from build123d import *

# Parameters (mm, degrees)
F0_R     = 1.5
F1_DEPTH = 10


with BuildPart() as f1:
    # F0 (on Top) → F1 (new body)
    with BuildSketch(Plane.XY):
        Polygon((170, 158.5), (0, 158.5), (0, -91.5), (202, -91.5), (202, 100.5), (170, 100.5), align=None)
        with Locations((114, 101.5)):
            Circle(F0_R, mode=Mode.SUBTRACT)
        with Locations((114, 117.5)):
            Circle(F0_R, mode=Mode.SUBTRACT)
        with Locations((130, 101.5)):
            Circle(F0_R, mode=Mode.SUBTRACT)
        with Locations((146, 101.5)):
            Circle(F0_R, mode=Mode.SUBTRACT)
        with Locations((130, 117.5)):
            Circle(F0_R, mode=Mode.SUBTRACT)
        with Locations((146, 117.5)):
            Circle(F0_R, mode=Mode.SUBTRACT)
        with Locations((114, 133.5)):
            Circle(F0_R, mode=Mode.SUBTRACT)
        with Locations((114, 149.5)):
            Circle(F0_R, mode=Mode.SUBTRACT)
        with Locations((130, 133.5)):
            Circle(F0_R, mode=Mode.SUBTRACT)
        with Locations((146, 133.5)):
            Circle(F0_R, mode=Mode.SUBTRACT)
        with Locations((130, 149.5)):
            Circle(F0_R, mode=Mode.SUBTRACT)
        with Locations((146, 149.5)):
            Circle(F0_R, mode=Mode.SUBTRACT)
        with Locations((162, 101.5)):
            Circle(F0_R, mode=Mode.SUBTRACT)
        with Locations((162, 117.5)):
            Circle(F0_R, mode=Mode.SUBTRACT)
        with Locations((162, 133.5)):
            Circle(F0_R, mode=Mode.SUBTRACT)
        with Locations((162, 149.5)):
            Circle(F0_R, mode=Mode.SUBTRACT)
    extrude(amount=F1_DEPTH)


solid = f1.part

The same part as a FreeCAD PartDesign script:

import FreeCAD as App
import Part
import Sketcher
Q = App.Units.Quantity


def add_polygon(sketch, points):
    """Adds a closed chain of lines whose ends are joined by coincident constraints."""
    first, n = sketch.GeometryCount, len(points)
    for a, b in zip(points, points[1:] + points[:1]):
        sketch.addGeometry(Part.LineSegment(App.Vector(*a, 0), App.Vector(*b, 0)), False)
    for i in range(n):
        sketch.addConstraint(Sketcher.Constraint("Coincident", first + i, 2, first + (i + 1) % n, 1))

doc = App.newDocument("Part")
params = doc.addObject("Spreadsheet::Sheet", "Params")
for row, (alias, value) in enumerate([
    ("sketch1_diameter", "3 mm"),
    ("sketch1_width", "170 mm"),
    ("sketch1_width2", "202 mm"),
    ("sketch1_height", "250 mm"),
    ("sketch1_height2", "192 mm"),
    ("pad1_length", "10 mm"),
], start=1):
    params.set(f"A{row}", alias)
    params.set(f"B{row}", "=" + value)
    params.setAlias(f"B{row}", alias)

body = doc.addObject("PartDesign::Body", "Body")

# Sketch on XY plane
sketch1 = body.newObject("Sketcher::SketchObject", "Sketch")
sketch1.AttachmentSupport = (doc.getObject("XY_Plane"), [""])
sketch1.MapMode = "FlatFace"
add_polygon(sketch1, [(170, 158.5), (0, 158.5), (0, -91.5), (202, -91.5), (202, 100.5), (170, 100.5)])  # lines 0-5
sketch1.addGeometry(Part.Circle(App.Vector(114, 101.5, 0), App.Vector(0, 0, 1), 1.5), False)  # 6
sketch1.addGeometry(Part.Circle(App.Vector(130, 101.5, 0), App.Vector(0, 0, 1), 1.5), False)  # 7
sketch1.addGeometry(Part.Circle(App.Vector(114, 117.5, 0), App.Vector(0, 0, 1), 1.5), False)  # 8
sketch1.addGeometry(Part.Circle(App.Vector(130, 117.5, 0), App.Vector(0, 0, 1), 1.5), False)  # 9
sketch1.addGeometry(Part.Circle(App.Vector(146, 101.5, 0), App.Vector(0, 0, 1), 1.5), False)  # 10
sketch1.addGeometry(Part.Circle(App.Vector(162, 101.5, 0), App.Vector(0, 0, 1), 1.5), False)  # 11
sketch1.addGeometry(Part.Circle(App.Vector(146, 117.5, 0), App.Vector(0, 0, 1), 1.5), False)  # 12
sketch1.addGeometry(Part.Circle(App.Vector(162, 117.5, 0), App.Vector(0, 0, 1), 1.5), False)  # 13
sketch1.addGeometry(Part.Circle(App.Vector(114, 133.5, 0), App.Vector(0, 0, 1), 1.5), False)  # 14
sketch1.addGeometry(Part.Circle(App.Vector(130, 133.5, 0), App.Vector(0, 0, 1), 1.5), False)  # 15
sketch1.addGeometry(Part.Circle(App.Vector(114, 149.5, 0), App.Vector(0, 0, 1), 1.5), False)  # 16
sketch1.addGeometry(Part.Circle(App.Vector(130, 149.5, 0), App.Vector(0, 0, 1), 1.5), False)  # 17
sketch1.addGeometry(Part.Circle(App.Vector(146, 133.5, 0), App.Vector(0, 0, 1), 1.5), False)  # 18
sketch1.addGeometry(Part.Circle(App.Vector(162, 133.5, 0), App.Vector(0, 0, 1), 1.5), False)  # 19
sketch1.addGeometry(Part.Circle(App.Vector(146, 149.5, 0), App.Vector(0, 0, 1), 1.5), False)  # 20
sketch1.addGeometry(Part.Circle(App.Vector(162, 149.5, 0), App.Vector(0, 0, 1), 1.5), False)  # 21
sketch1.addConstraint([
    Sketcher.Constraint("Horizontal", 0),
    Sketcher.Constraint("Vertical", 1),
    Sketcher.Constraint("Horizontal", 2),
    Sketcher.Constraint("Vertical", 3),
    Sketcher.Constraint("Horizontal", 4),
    Sketcher.Constraint("Vertical", 5),
    Sketcher.Constraint("Equal", 6, 7),
    Sketcher.Constraint("Equal", 7, 8),
    Sketcher.Constraint("Equal", 8, 9),
    Sketcher.Constraint("Equal", 9, 10),
    Sketcher.Constraint("Equal", 10, 11),
    Sketcher.Constraint("Equal", 11, 12),
    Sketcher.Constraint("Equal", 12, 13),
    Sketcher.Constraint("Equal", 13, 14),
    Sketcher.Constraint("Equal", 14, 15),
    Sketcher.Constraint("Equal", 15, 16),
    Sketcher.Constraint("Equal", 16, 17),
    Sketcher.Constraint("Equal", 17, 18),
    Sketcher.Constraint("Equal", 18, 19),
    Sketcher.Constraint("Equal", 19, 20),
    Sketcher.Constraint("Equal", 20, 21),
    Sketcher.Constraint("PointOnObject", 0, 2, -2),
    Sketcher.Constraint("Horizontal", 6, 3, 7, 3),
    Sketcher.Constraint("Horizontal", 8, 3, 9, 3),
    Sketcher.Constraint("Horizontal", 7, 3, 10, 3),
    Sketcher.Constraint("Horizontal", 10, 3, 11, 3),
    Sketcher.Constraint("Horizontal", 9, 3, 12, 3),
    Sketcher.Constraint("Horizontal", 12, 3, 13, 3),
    Sketcher.Constraint("Horizontal", 14, 3, 15, 3),
    Sketcher.Constraint("Horizontal", 16, 3, 17, 3),
    Sketcher.Constraint("Horizontal", 15, 3, 18, 3),
    Sketcher.Constraint("Horizontal", 18, 3, 19, 3),
    Sketcher.Constraint("Horizontal", 17, 3, 20, 3),
    Sketcher.Constraint("Horizontal", 20, 3, 21, 3),
    Sketcher.Constraint("Vertical", 6, 3, 8, 3),
    Sketcher.Constraint("Vertical", 7, 3, 9, 3),
    Sketcher.Constraint("Vertical", 10, 3, 12, 3),
    Sketcher.Constraint("Vertical", 11, 3, 13, 3),
    Sketcher.Constraint("Vertical", 8, 3, 14, 3),
    Sketcher.Constraint("Vertical", 9, 3, 15, 3),
    Sketcher.Constraint("Vertical", 14, 3, 16, 3),
    Sketcher.Constraint("Vertical", 15, 3, 17, 3),
    Sketcher.Constraint("Vertical", 12, 3, 18, 3),
    Sketcher.Constraint("Vertical", 13, 3, 19, 3),
    Sketcher.Constraint("Vertical", 18, 3, 20, 3),
    Sketcher.Constraint("Vertical", 19, 3, 21, 3),
    Sketcher.Constraint("Diameter", 6, Q("3 mm")),
    Sketcher.Constraint("DistanceX", 0, 2, 0, 1, Q("170 mm")),
    Sketcher.Constraint("DistanceX", 2, 1, 2, 2, Q("202 mm")),
    Sketcher.Constraint("DistanceY", 1, 2, 1, 1, Q("250 mm")),
    Sketcher.Constraint("DistanceY", 3, 1, 3, 2, Q("192 mm")),
    Sketcher.Constraint("DistanceX", -1, 1, 6, 3, Q("114 mm")),
    Sketcher.Constraint("DistanceX", -1, 1, 7, 3, Q("130 mm")),
    Sketcher.Constraint("DistanceX", -1, 1, 10, 3, Q("146 mm")),
    Sketcher.Constraint("DistanceX", -1, 1, 11, 3, Q("162 mm")),
    Sketcher.Constraint("DistanceY", 6, 3, 8, 3, Q("16 mm")),
    Sketcher.Constraint("DistanceY", 8, 3, 14, 3, Q("16 mm")),
    Sketcher.Constraint("DistanceY", 14, 3, 16, 3, Q("16 mm")),
    Sketcher.Constraint("DistanceY", 16, 3, 0, 2, Q("9 mm")),
    Sketcher.Constraint("DistanceY", -1, 1, 6, 3, Q("101.5 mm")),
])
sketch1.setExpression("Constraints[52]", "Params.sketch1_diameter")
sketch1.setExpression("Constraints[53]", "Params.sketch1_width")
sketch1.setExpression("Constraints[54]", "Params.sketch1_width2")
sketch1.setExpression("Constraints[55]", "Params.sketch1_height")
sketch1.setExpression("Constraints[56]", "Params.sketch1_height2")
pad1 = body.newObject("PartDesign::Pad", "Pad")
pad1.Profile = sketch1
pad1.setExpression("Length", "Params.pad1_length")

doc.recompute()
